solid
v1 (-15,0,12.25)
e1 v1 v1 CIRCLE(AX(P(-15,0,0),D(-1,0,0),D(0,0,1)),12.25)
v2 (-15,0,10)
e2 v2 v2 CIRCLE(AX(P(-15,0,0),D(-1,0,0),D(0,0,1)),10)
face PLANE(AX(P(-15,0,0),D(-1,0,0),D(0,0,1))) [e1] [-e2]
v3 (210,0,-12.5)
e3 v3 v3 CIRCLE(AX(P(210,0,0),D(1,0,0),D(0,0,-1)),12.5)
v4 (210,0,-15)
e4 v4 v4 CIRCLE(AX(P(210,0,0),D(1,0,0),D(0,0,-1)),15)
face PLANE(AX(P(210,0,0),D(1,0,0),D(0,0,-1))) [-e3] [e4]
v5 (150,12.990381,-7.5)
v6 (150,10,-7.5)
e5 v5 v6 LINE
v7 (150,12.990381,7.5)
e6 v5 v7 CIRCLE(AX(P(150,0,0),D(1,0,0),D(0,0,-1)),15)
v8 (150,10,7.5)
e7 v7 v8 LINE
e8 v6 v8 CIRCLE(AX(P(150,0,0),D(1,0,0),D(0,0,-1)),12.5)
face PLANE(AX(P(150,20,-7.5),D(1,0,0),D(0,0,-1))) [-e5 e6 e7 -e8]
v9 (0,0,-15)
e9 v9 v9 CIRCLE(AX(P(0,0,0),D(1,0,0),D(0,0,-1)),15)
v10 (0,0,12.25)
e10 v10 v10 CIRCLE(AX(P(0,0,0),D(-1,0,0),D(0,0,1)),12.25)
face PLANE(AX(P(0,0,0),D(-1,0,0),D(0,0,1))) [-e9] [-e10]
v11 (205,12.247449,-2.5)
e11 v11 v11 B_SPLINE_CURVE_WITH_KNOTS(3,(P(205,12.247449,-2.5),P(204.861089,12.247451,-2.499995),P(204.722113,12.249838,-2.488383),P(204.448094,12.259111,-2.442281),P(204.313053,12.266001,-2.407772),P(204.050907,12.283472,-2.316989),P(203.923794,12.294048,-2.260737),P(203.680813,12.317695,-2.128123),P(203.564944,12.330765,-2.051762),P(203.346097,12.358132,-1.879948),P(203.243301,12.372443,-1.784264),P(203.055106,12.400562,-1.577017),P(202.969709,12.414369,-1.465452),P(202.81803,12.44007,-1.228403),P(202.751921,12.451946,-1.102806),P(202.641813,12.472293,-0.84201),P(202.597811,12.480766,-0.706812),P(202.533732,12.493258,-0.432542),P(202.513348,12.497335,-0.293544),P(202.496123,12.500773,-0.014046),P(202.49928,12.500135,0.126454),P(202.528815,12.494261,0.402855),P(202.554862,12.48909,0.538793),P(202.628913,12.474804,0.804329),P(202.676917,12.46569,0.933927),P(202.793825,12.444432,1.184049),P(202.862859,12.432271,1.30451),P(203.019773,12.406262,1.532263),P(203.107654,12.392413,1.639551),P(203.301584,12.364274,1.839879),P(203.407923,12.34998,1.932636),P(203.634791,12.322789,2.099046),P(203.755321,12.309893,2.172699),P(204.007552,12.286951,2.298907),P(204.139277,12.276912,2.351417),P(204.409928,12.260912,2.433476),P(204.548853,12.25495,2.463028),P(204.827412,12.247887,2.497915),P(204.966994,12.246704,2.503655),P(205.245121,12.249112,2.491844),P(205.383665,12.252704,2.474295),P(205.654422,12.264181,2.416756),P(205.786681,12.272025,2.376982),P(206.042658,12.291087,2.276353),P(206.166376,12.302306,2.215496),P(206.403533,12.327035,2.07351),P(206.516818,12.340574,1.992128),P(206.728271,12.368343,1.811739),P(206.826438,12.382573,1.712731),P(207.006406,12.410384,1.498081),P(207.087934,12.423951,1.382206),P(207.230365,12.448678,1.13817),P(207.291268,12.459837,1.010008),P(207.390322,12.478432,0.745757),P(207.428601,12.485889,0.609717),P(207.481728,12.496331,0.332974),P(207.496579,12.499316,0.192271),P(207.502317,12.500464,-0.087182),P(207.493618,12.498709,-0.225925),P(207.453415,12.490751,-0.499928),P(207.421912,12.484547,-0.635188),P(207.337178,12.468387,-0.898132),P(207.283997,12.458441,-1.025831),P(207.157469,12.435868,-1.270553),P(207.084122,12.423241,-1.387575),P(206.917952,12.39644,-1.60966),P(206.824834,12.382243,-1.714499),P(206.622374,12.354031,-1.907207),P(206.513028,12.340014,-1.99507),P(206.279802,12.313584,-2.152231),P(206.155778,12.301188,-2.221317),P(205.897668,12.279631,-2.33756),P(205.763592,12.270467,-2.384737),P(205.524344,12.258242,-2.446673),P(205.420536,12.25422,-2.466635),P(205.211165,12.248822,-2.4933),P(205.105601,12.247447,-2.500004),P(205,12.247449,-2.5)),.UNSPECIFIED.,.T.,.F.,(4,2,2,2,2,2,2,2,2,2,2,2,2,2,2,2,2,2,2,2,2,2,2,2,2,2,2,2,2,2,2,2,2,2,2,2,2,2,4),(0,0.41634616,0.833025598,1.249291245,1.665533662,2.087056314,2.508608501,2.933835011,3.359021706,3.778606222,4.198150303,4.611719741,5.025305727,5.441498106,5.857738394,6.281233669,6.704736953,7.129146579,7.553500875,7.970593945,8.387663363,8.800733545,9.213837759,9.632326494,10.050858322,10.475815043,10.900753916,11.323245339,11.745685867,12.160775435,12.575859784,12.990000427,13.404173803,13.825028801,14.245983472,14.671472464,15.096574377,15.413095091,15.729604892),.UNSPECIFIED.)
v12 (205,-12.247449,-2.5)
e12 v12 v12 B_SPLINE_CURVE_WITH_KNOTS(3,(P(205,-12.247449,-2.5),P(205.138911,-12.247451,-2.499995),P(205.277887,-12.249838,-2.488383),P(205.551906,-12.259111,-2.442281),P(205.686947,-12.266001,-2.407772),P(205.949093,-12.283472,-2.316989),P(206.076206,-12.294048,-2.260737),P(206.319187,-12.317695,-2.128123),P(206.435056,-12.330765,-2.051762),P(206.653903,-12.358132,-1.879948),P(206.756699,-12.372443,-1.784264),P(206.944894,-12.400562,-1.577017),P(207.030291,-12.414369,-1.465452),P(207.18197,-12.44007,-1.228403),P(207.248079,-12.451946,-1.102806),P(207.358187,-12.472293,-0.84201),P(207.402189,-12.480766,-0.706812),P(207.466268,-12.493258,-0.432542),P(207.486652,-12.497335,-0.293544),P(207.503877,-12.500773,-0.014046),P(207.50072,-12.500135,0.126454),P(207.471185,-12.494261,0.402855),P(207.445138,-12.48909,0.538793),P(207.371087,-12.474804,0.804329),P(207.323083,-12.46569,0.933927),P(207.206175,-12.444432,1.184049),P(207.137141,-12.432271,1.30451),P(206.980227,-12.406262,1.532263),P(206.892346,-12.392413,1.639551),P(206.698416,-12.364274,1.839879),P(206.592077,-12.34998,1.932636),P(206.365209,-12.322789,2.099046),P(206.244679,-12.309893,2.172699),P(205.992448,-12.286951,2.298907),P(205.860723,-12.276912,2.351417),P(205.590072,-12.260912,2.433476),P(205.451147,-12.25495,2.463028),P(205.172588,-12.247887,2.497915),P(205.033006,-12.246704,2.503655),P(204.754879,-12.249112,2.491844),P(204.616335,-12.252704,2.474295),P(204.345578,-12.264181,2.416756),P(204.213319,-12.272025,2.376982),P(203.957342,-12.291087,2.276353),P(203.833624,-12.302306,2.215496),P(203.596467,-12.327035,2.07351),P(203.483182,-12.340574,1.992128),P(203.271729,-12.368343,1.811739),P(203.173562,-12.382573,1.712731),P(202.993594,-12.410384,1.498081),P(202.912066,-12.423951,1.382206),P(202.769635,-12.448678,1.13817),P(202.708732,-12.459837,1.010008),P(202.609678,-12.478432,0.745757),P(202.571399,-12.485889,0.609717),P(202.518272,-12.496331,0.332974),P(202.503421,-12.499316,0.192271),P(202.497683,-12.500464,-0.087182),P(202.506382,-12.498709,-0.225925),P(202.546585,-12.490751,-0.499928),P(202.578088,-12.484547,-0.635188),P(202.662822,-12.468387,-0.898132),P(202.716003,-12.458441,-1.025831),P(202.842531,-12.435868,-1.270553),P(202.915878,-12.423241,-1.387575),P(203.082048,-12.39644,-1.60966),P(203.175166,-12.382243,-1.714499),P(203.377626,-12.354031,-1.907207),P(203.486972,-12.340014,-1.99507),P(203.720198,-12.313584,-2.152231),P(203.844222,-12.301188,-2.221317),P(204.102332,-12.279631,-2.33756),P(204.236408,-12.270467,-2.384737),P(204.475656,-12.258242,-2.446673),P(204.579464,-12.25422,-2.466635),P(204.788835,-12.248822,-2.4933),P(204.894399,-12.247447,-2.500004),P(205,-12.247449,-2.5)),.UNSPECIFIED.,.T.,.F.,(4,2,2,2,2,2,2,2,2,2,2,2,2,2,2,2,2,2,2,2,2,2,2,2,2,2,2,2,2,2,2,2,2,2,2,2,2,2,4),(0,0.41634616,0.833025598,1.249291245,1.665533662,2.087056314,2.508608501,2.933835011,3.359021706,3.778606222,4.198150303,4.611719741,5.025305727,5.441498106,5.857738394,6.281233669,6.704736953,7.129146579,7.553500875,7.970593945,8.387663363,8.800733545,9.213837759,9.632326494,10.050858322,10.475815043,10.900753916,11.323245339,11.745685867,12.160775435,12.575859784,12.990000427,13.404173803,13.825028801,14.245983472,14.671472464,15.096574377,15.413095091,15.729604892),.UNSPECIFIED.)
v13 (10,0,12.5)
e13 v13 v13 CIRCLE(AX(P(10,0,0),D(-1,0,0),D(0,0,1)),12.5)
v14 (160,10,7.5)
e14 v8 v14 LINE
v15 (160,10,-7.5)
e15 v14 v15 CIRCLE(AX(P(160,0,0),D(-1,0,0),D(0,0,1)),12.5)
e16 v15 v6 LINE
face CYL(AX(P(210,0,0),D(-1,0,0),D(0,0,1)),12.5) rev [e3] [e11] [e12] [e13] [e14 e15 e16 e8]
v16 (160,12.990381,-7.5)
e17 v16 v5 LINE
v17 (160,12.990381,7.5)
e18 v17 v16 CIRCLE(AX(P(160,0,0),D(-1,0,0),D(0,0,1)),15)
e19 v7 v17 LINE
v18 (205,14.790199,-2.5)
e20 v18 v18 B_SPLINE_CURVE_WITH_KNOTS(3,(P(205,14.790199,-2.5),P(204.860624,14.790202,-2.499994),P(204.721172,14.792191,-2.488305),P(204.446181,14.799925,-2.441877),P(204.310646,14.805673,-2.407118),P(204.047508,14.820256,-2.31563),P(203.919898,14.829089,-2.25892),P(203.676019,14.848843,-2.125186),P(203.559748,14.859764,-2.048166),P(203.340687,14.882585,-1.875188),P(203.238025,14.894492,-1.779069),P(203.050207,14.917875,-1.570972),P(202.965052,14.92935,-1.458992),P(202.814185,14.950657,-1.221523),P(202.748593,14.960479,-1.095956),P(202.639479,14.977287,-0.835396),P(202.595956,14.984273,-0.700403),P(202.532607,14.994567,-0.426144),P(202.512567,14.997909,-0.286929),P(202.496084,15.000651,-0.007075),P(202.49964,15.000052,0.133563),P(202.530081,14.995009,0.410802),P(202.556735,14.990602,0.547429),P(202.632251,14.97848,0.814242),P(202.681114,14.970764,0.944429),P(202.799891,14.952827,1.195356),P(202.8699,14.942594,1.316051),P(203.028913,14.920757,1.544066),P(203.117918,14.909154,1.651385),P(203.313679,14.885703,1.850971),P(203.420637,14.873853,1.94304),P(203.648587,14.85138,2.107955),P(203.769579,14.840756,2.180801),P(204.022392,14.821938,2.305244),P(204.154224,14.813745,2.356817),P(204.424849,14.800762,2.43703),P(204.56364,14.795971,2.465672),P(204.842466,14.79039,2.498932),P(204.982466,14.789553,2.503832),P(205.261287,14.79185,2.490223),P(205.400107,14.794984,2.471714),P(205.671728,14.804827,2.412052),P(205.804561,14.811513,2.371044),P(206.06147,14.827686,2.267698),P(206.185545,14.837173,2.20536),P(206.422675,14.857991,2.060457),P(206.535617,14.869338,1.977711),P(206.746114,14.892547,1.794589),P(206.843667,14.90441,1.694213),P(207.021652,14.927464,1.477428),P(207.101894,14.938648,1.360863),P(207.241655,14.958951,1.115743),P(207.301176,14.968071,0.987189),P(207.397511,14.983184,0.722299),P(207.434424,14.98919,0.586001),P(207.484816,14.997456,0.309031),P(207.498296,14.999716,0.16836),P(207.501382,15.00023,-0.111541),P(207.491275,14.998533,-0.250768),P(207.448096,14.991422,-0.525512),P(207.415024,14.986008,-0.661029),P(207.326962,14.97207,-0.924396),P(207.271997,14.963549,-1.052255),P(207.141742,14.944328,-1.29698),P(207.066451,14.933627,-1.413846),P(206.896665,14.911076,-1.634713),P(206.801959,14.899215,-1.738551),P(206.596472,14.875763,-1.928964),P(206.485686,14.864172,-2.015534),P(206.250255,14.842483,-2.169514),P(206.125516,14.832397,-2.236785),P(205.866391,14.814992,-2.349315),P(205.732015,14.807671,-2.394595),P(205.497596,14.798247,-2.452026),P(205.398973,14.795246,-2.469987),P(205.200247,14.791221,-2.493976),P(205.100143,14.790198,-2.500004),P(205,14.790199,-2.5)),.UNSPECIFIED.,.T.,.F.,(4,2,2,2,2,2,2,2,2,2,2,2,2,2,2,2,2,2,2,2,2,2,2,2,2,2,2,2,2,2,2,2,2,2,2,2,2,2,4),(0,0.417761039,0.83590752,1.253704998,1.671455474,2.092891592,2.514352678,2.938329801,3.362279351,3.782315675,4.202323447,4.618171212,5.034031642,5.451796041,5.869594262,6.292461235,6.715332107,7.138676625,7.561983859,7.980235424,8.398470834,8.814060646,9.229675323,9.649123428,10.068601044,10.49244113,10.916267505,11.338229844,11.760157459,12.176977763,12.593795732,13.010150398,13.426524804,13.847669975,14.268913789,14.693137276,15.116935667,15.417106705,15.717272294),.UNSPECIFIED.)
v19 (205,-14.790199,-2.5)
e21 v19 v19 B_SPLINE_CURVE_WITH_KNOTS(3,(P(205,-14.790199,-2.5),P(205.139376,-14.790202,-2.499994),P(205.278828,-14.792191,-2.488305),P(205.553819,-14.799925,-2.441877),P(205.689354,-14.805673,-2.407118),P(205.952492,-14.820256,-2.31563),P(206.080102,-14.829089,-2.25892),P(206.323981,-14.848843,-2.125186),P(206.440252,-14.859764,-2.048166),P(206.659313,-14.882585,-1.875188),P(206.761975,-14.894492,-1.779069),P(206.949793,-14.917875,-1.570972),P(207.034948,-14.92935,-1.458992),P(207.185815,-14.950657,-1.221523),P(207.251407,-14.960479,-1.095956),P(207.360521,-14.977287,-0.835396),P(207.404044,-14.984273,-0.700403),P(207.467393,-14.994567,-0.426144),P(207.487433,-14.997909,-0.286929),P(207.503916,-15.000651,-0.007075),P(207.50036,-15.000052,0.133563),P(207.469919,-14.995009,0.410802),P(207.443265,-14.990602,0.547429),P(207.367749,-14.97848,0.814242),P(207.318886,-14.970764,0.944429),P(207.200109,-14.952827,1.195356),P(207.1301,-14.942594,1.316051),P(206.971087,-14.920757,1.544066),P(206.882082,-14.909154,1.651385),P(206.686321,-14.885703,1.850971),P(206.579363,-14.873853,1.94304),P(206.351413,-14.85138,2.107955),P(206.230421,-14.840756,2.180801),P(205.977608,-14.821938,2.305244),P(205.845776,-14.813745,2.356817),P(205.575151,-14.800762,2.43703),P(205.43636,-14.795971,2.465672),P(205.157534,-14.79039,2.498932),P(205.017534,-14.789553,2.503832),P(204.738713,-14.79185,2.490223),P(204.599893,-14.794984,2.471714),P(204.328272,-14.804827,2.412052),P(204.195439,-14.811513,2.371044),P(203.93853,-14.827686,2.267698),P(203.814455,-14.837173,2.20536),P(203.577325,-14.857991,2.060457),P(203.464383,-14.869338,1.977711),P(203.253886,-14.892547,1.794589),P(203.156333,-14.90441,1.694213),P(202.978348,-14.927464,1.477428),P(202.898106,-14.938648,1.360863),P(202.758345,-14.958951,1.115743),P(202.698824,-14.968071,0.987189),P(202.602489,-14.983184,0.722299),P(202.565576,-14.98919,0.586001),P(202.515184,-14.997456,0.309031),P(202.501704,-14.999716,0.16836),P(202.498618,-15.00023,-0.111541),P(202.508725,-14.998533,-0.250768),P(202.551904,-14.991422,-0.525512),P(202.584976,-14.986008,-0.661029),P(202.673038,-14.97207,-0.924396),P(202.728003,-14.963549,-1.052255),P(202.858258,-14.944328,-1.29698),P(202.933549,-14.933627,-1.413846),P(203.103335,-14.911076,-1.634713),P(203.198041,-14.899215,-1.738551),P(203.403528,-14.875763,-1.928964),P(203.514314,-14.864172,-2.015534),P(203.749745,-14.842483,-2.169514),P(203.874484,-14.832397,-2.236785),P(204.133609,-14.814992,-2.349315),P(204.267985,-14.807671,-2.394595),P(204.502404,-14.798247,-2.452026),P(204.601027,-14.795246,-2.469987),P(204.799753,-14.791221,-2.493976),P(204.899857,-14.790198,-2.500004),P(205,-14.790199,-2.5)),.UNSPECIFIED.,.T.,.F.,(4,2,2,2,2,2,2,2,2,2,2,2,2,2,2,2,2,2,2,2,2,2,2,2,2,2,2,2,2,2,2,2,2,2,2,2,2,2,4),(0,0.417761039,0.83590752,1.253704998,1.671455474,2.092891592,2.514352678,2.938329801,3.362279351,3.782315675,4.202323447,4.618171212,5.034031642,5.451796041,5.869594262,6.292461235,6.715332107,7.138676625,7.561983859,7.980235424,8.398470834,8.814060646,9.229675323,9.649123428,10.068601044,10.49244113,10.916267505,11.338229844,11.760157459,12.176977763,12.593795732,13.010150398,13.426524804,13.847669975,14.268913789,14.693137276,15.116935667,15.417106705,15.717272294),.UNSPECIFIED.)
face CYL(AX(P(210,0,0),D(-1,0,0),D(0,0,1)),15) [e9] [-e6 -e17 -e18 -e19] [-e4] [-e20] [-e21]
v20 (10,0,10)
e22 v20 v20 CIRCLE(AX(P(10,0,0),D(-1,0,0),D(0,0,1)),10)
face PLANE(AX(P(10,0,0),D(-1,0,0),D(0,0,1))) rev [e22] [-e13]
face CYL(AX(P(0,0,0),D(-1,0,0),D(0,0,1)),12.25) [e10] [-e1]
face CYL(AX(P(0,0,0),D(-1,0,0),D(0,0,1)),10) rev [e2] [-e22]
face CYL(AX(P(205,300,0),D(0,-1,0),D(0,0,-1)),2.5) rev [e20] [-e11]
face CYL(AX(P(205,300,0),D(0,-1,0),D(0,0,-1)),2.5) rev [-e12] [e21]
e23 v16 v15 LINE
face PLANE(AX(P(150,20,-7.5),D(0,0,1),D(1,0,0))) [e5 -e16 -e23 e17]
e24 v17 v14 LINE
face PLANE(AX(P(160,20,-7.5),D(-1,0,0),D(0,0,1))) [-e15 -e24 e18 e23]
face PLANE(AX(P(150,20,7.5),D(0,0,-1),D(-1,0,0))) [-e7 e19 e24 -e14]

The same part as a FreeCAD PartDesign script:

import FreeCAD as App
import Part
import Sketcher

doc = App.newDocument("Part")
params = doc.addObject("Spreadsheet::Sheet", "Params")
for row, (alias, value) in enumerate([
    ("sketch1_diameter", "30 mm"),
    ("sketch1_diameter2", "25 mm"),
    ("pad1_length", "210 mm"),
    ("sketch2_diameter", "5 mm"),
    ("sketch3_width", "10 mm"),
    ("sketch3_height", "15 mm"),
    ("pocket2_length", "20 mm"),
    ("sketch4_diameter", "20 mm"),
    ("sketch4_diameter2", "24.5 mm"),
    ("pad2_length", "15 mm"),
    ("sketch5_diameter", "25 mm"),
    ("pad3_length", "10 mm"),
    ("sketch6_diameter", "20 mm"),
    ("pocket3_length", "20 mm"),
], start=1):
    params.set(f"A{row}", alias)
    params.set(f"B{row}", "=" + value)
    params.setAlias(f"B{row}", alias)

body = doc.addObject("PartDesign::Body", "Body")

# Sketch on YZ plane
sketch1 = doc.addObject("Sketcher::SketchObject", "Sketch")
body.addObject(sketch1)
sketch1.AttachmentSupport = (doc.YZ_Plane, [""])
sketch1.MapMode = "FlatFace"
sketch1.addGeometry([
    Part.Circle(App.Vector(0, 0, 0), App.Vector(0, 0, 1), 15),
    Part.Circle(App.Vector(0, 0, 0), App.Vector(0, 0, 1), 12),
], False)
sketch1.addConstraint([
    Sketcher.Constraint("Coincident", 0, 3, -1, 1),
    Sketcher.Constraint("Coincident", 1, 3, -1, 1),
    Sketcher.Constraint("Diameter", 0, 30.0),
    Sketcher.Constraint("Diameter", 1, 25.0),
])
sketch1.setExpression("Constraints[2]", "Params.sketch1_diameter")
sketch1.setExpression("Constraints[3]", "Params.sketch1_diameter2")
pad1 = doc.addObject("PartDesign::Pad", "Pad")
body.addObject(pad1)
pad1.Profile = sketch1
pad1.setExpression("Length", "Params.pad1_length")

# Sketch on XZ plane
sketch2 = doc.addObject("Sketcher::SketchObject", "Sketch001")
body.addObject(sketch2)
sketch2.AttachmentSupport = (doc.XZ_Plane, [""])
sketch2.MapMode = "FlatFace"
sketch2.addGeometry(Part.Circle(App.Vector(205, 0, 0), App.Vector(0, 0, 1), 2.5), False)
sketch2.addConstraint([
    Sketcher.Constraint("PointOnObject", 0, 3, -1),
    Sketcher.Constraint("Diameter", 0, 5.0),
    Sketcher.Constraint("DistanceX", -1, 1, 0, 3, 205.0),
])
sketch2.setExpression("Constraints[1]", "Params.sketch2_diameter")
pocket1 = doc.addObject("PartDesign::Pocket", "Pocket")
body.addObject(pocket1)
pocket1.Profile = sketch2
pocket1.Type = "ThroughAll"
pocket1.Midplane = True

# Sketch on XZ plane
sketch3 = doc.addObject("Sketcher::SketchObject", "Sketch002")
body.addObject(sketch3)
sketch3.AttachmentSupport = (doc.XZ_Plane, [""])
sketch3.MapMode = "FlatFace"
sketch3.addGeometry([
    Part.LineSegment(App.Vector(150, -8, 0), App.Vector(150, 8, 0)),
    Part.LineSegment(App.Vector(150, 8, 0), App.Vector(160, 8, 0)),
    Part.LineSegment(App.Vector(160, 8, 0), App.Vector(160, -8, 0)),
    Part.LineSegment(App.Vector(160, -8, 0), App.Vector(150, -8, 0)),
], False)
sketch3.addConstraint([
    Sketcher.Constraint("Coincident", 0, 2, 1, 1),
    Sketcher.Constraint("Coincident", 1, 2, 2, 1),
    Sketcher.Constraint("Coincident", 2, 2, 3, 1),
    Sketcher.Constraint("Coincident", 3, 2, 0, 1),
    Sketcher.Constraint("Vertical", 0),
    Sketcher.Constraint("Horizontal", 1),
    Sketcher.Constraint("Vertical", 2),
    Sketcher.Constraint("Horizontal", 3),
    Sketcher.Constraint("DistanceX", 1, 1, 1, 2, 10.0),
    Sketcher.Constraint("DistanceY", 0, 1, 0, 2, 15.0),
    Sketcher.Constraint("DistanceX", -1, 1, 0, 2, 150.0),
    Sketcher.Constraint("DistanceY", -1, 1, 0, 2, 7.5),
])
sketch3.setExpression("Constraints[8]", "Params.sketch3_width")
sketch3.setExpression("Constraints[9]", "Params.sketch3_height")
pocket2 = doc.addObject("PartDesign::Pocket", "Pocket001")
body.addObject(pocket2)
pocket2.Profile = sketch3
pocket2.setExpression("Length", "Params.pocket2_length")
body2 = doc.addObject("PartDesign::Body", "Body001")

# Sketch on YZ plane
sketch4 = doc.addObject("Sketcher::SketchObject", "Sketch003")
body2.addObject(sketch4)
sketch4.AttachmentSupport = (doc.getObject("YZ_Plane001"), [""])
sketch4.MapMode = "FlatFace"
sketch4.AttachmentOffset = App.Placement(App.Vector(0, 0, -15), App.Rotation())
sketch4.addGeometry([
    Part.Circle(App.Vector(0, 0, 0), App.Vector(0, 0, 1), 12),
    Part.Circle(App.Vector(0, 0, 0), App.Vector(0, 0, 1), 10),
], False)
sketch4.addConstraint([
    Sketcher.Constraint("Coincident", 0, 3, -1, 1),
    Sketcher.Constraint("Coincident", 1, 3, -1, 1),
    Sketcher.Constraint("Diameter", 1, 20.0),
    Sketcher.Constraint("Diameter", 0, 24.5),
])
sketch4.setExpression("Constraints[2]", "Params.sketch4_diameter")
sketch4.setExpression("Constraints[3]", "Params.sketch4_diameter2")
pad2 = doc.addObject("PartDesign::Pad", "Pad001")
body2.addObject(pad2)
pad2.Profile = sketch4
pad2.setExpression("Length", "Params.pad2_length")
body.AllowCompound = True
doc.recompute()

boolean = doc.addObject("PartDesign::Boolean", "Boolean")
body.addObject(boolean)
boolean.Type = "Fuse"
boolean.addObjects([body2])

# Sketch on YZ plane
sketch5 = doc.addObject("Sketcher::SketchObject", "Sketch004")
body.addObject(sketch5)
sketch5.AttachmentSupport = (doc.YZ_Plane, [""])
sketch5.MapMode = "FlatFace"
sketch5.addGeometry(Part.Circle(App.Vector(0, 0, 0), App.Vector(0, 0, 1), 12), False)
sketch5.addConstraint([
    Sketcher.Constraint("Coincident", 0, 3, -1, 1),
    Sketcher.Constraint("Diameter", 0, 25.0),
])
sketch5.setExpression("Constraints[1]", "Params.sketch5_diameter")
pad3 = doc.addObject("PartDesign::Pad", "Pad002")
body.addObject(pad3)
pad3.Profile = sketch5
pad3.setExpression("Length", "Params.pad3_length")

# Sketch on YZ plane
sketch6 = doc.addObject("Sketcher::SketchObject", "Sketch005")
body.addObject(sketch6)
sketch6.AttachmentSupport = (doc.YZ_Plane, [""])
sketch6.MapMode = "FlatFace"
sketch6.addGeometry(Part.Circle(App.Vector(0, 0, 0), App.Vector(0, 0, 1), 10), False)
sketch6.addConstraint([
    Sketcher.Constraint("Coincident", 0, 3, -1, 1),
    Sketcher.Constraint("Diameter", 0, 20.0),
])
sketch6.setExpression("Constraints[1]", "Params.sketch6_diameter")
pocket3 = doc.addObject("PartDesign::Pocket", "Pocket002")
body.addObject(pocket3)
pocket3.Profile = sketch6
pocket3.setExpression("Length", "Params.pocket3_length")
pocket3.Reversed = True

doc.recompute()
